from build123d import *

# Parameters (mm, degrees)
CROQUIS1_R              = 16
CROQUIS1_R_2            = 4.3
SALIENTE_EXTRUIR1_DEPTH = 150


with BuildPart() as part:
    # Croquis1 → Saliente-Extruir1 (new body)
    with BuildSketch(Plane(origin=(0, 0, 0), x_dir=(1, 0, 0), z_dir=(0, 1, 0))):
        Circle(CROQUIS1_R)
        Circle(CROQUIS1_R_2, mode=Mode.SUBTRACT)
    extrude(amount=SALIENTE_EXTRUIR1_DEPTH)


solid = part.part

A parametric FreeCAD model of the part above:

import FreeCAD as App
import Part
import Sketcher

V = App.Vector

doc = App.newDocument("Part")
body = doc.addObject("PartDesign::Body", "Body")

sketch1 = body.newObject("Sketcher::SketchObject", "Sketch")
sketch1.AttachmentSupport = (doc.getObject("XZ_Plane"), [""])
sketch1.MapMode = "FlatFace"
sketch1.addGeometry(Part.Circle(V(0, 0, 0), V(0, 0, 1), 16), False)
sketch1.addGeometry(Part.Circle(V(0, 0, 0), V(0, 0, 1), 4.3), False)
sketch1.addConstraint(Sketcher.Constraint("Coincident", 0, 3, -1, 1))
sketch1.addConstraint(Sketcher.Constraint("Coincident", 1, 3, -1, 1))
sketch1.addConstraint(Sketcher.Constraint("Diameter", 0, 32.0))
sketch1.addConstraint(Sketcher.Constraint("Diameter", 1, 8.6))
pad1 = body.newObject("PartDesign::Pad", "Pad")
pad1.Profile = sketch1
pad1.Length = 150
pad1.Reversed = True

doc.recompute()
